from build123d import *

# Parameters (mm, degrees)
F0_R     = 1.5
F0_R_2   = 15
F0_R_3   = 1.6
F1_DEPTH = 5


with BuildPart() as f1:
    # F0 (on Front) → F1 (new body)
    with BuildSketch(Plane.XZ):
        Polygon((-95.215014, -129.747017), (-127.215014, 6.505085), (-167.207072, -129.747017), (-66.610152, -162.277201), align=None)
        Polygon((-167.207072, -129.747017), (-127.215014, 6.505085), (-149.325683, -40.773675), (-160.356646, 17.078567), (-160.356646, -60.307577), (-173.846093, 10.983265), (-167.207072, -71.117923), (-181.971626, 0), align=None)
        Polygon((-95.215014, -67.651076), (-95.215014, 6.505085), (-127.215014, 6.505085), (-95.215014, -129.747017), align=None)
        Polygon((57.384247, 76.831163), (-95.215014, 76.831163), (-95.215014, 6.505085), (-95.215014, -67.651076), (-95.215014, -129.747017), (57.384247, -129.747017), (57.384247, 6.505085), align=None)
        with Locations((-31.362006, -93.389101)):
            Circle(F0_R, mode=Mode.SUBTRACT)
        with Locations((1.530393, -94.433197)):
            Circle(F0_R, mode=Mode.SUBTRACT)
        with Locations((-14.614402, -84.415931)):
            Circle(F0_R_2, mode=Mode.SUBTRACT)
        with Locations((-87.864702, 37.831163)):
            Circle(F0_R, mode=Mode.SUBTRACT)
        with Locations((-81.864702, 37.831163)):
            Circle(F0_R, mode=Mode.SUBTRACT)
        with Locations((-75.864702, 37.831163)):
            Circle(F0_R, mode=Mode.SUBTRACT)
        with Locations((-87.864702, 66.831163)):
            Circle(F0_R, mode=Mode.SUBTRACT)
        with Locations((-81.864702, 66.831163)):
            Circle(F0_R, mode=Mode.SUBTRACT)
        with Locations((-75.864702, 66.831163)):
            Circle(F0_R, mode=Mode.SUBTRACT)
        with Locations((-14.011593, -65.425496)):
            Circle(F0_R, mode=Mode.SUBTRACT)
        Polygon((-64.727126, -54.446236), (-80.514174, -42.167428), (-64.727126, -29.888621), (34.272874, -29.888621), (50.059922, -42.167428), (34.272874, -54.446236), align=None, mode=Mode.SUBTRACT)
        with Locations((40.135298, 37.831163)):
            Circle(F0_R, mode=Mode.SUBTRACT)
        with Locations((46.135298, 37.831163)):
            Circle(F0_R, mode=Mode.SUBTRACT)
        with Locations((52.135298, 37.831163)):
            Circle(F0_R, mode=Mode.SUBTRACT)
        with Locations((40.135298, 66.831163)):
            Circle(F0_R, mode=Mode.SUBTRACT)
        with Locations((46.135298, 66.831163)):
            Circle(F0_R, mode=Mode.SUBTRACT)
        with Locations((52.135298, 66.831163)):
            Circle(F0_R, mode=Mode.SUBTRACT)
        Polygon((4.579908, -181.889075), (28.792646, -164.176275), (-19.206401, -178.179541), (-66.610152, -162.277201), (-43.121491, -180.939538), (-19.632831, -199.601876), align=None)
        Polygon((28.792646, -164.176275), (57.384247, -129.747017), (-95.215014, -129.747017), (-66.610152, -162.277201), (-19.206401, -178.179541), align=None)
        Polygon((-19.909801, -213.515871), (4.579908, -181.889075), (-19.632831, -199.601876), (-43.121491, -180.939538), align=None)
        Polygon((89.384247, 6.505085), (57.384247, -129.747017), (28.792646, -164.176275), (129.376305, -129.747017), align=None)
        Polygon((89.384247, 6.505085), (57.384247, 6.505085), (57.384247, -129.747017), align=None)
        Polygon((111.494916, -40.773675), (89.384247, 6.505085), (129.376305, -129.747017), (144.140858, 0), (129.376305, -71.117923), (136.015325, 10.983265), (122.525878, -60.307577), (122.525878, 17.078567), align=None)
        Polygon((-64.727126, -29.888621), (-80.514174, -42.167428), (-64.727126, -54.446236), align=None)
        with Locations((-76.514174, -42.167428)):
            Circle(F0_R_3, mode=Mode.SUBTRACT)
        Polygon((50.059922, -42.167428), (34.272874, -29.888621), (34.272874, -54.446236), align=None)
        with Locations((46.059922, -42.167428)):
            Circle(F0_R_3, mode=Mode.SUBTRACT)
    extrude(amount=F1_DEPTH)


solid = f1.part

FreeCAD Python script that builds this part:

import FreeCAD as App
import Part
import Sketcher
Q = App.Units.Quantity


def add_polygon(sketch, points):
    """Adds a closed chain of lines whose ends are joined by coincident constraints."""
    first, n = sketch.GeometryCount, len(points)
    for a, b in zip(points, points[1:] + points[:1]):
        sketch.addGeometry(Part.LineSegment(App.Vector(*a, 0), App.Vector(*b, 0)), False)
    for i in range(n):
        sketch.addConstraint(Sketcher.Constraint("Coincident", first + i, 2, first + (i + 1) % n, 1))

doc = App.newDocument("Part")
params = doc.addObject("Spreadsheet::Sheet", "Params")
for row, (alias, value) in enumerate([
    ("sketch1_diameter", "3 mm"),
    ("sketch1_diameter2", "30 mm"),
    ("sketch1_diameter3", "3.2 mm"),
    ("sketch1_width", "32 mm"),
    ("sketch1_width2", "99 mm"),
    ("pad1_length", "5 mm"),
], start=1):
    params.set(f"A{row}", alias)
    params.set(f"B{row}", "=" + value)
    params.setAlias(f"B{row}", alias)

body = doc.addObject("PartDesign::Body", "Body")

# Sketch on XZ plane
sketch1 = body.newObject("Sketcher::SketchObject", "Sketch")
sketch1.AttachmentSupport = (doc.getObject("XZ_Plane"), [""])
sketch1.MapMode = "FlatFace"
add_polygon(sketch1, [(-127.2, 6.5), (-149.3, -40.8), (-160.4, 17.1), (-160.4, -60.3), (-173.8, 11), (-167.2, -71.1), (-182, 0), (-167.2, -129.7), (-66.6, -162.3), (-43.1, -180.9), (-19.9, -213.5), (4.6, -181.9), (28.8, -164.2), (129.4, -129.7), (144.1, 0), (129.4, -71.1), (136, 11), (122.5, -60.3), (122.5, 17.1), (111.5, -40.8), (89.4, 6.5), (57.4, 6.5), (57.4, 76.8), (-95.2, 76.8), (-95.2, 6.5)])  # lines 0-24
sketch1.addGeometry(Part.Circle(App.Vector(-31.4, -93.4, 0), App.Vector(0, 0, 1), 1.5), False)  # 25
sketch1.addGeometry(Part.Circle(App.Vector(-76.5, -42.2, 0), App.Vector(0, 0, 1), 1.6), False)  # 26
sketch1.addGeometry(Part.Circle(App.Vector(-14.6, -84.4, 0), App.Vector(0, 0, 1), 15), False)  # 27
sketch1.addGeometry(Part.Circle(App.Vector(1.5, -94.4, 0), App.Vector(0, 0, 1), 1.5), False)  # 28
sketch1.addGeometry(Part.Circle(App.Vector(-14, -65.4, 0), App.Vector(0, 0, 1), 1.5), False)  # 29
add_polygon(sketch1, [(34.3, -54.4), (-64.7, -54.4), (-64.7, -29.9), (34.3, -29.9)])  # lines 30-33
sketch1.addGeometry(Part.Circle(App.Vector(46.1, -42.2, 0), App.Vector(0, 0, 1), 1.6), False)  # 34
sketch1.addGeometry(Part.Circle(App.Vector(-87.9, 37.8, 0), App.Vector(0, 0, 1), 1.5), False)  # 35
sketch1.addGeometry(Part.Circle(App.Vector(-81.9, 37.8, 0), App.Vector(0, 0, 1), 1.5), False)  # 36
sketch1.addGeometry(Part.Circle(App.Vector(-75.9, 37.8, 0), App.Vector(0, 0, 1), 1.5), False)  # 37
sketch1.addGeometry(Part.Circle(App.Vector(-87.9, 66.8, 0), App.Vector(0, 0, 1), 1.5), False)  # 38
sketch1.addGeometry(Part.Circle(App.Vector(-81.9, 66.8, 0), App.Vector(0, 0, 1), 1.5), False)  # 39
sketch1.addGeometry(Part.Circle(App.Vector(-75.9, 66.8, 0), App.Vector(0, 0, 1), 1.5), False)  # 40
sketch1.addGeometry(Part.Circle(App.Vector(40.1, 37.8, 0), App.Vector(0, 0, 1), 1.5), False)  # 41
sketch1.addGeometry(Part.Circle(App.Vector(46.1, 37.8, 0), App.Vector(0, 0, 1), 1.5), False)  # 42
sketch1.addGeometry(Part.Circle(App.Vector(52.1, 37.8, 0), App.Vector(0, 0, 1), 1.5), False)  # 43
sketch1.addGeometry(Part.Circle(App.Vector(40.1, 66.8, 0), App.Vector(0, 0, 1), 1.5), False)  # 44
sketch1.addGeometry(Part.Circle(App.Vector(46.1, 66.8, 0), App.Vector(0, 0, 1), 1.5), False)  # 45
sketch1.addGeometry(Part.Circle(App.Vector(52.1, 66.8, 0), App.Vector(0, 0, 1), 1.5), False)  # 46
sketch1.addConstraint(Sketcher.Constraint("Vertical", 2))
sketch1.addConstraint(Sketcher.Constraint("Vertical", 17))
sketch1.addConstraint(Sketcher.Constraint("Horizontal", 20))
sketch1.addConstraint(Sketcher.Constraint("Vertical", 21))
sketch1.addConstraint(Sketcher.Constraint("Horizontal", 22))
sketch1.addConstraint(Sketcher.Constraint("Vertical", 23))
sketch1.addConstraint(Sketcher.Constraint("Horizontal", 24))
sketch1.addConstraint(Sketcher.Constraint("Horizontal", 30))
sketch1.addConstraint(Sketcher.Constraint("Vertical", 31))
sketch1.addConstraint(Sketcher.Constraint("Horizontal", 32))
sketch1.addConstraint(Sketcher.Constraint("Vertical", 33))
sketch1.addConstraint(Sketcher.Constraint("Equal", 25, 28))
sketch1.addConstraint(Sketcher.Constraint("Equal", 28, 29))
sketch1.addConstraint(Sketcher.Constraint("Equal", 26, 34))
sketch1.addConstraint(Sketcher.Constraint("Equal", 29, 35))
sketch1.addConstraint(Sketcher.Constraint("Equal", 35, 36))
sketch1.addConstraint(Sketcher.Constraint("Equal", 36, 37))
sketch1.addConstraint(Sketcher.Constraint("Equal", 37, 38))
sketch1.addConstraint(Sketcher.Constraint("Equal", 38, 39))
sketch1.addConstraint(Sketcher.Constraint("Equal", 39, 40))
sketch1.addConstraint(Sketcher.Constraint("Equal", 40, 41))
sketch1.addConstraint(Sketcher.Constraint("Equal", 41, 42))
sketch1.addConstraint(Sketcher.Constraint("Equal", 42, 43))
sketch1.addConstraint(Sketcher.Constraint("Equal", 43, 44))
sketch1.addConstraint(Sketcher.Constraint("Equal", 44, 45))
sketch1.addConstraint(Sketcher.Constraint("Equal", 45, 46))
sketch1.addConstraint(Sketcher.Constraint("PointOnObject", 5, 2, -1))
sketch1.addConstraint(Sketcher.Constraint("PointOnObject", 13, 2, -1))
sketch1.addConstraint(Sketcher.Constraint("Horizontal", 26, 3, 34, 3))
sketch1.addConstraint(Sketcher.Constraint("Horizontal", 35, 3, 36, 3))
sketch1.addConstraint(Sketcher.Constraint("Horizontal", 36, 3, 37, 3))
sketch1.addConstraint(Sketcher.Constraint("Horizontal", 38, 3, 39, 3))
sketch1.addConstraint(Sketcher.Constraint("Horizontal", 39, 3, 40, 3))
sketch1.addConstraint(Sketcher.Constraint("Horizontal", 37, 3, 41, 3))
sketch1.addConstraint(Sketcher.Constraint("Horizontal", 41, 3, 42, 3))
sketch1.addConstraint(Sketcher.Constraint("Horizontal", 42, 3, 43, 3))
sketch1.addConstraint(Sketcher.Constraint("Horizontal", 40, 3, 44, 3))
sketch1.addConstraint(Sketcher.Constraint("Horizontal", 44, 3, 45, 3))
sketch1.addConstraint(Sketcher.Constraint("Horizontal", 45, 3, 46, 3))
sketch1.addConstraint(Sketcher.Constraint("Horizontal", 6, 2, 12, 2))
sketch1.addConstraint(Sketcher.Constraint("Horizontal", 4, 2, 14, 2))
sketch1.addConstraint(Sketcher.Constraint("Horizontal", 3, 2, 15, 2))
sketch1.addConstraint(Sketcher.Constraint("Horizontal", 2, 2, 16, 2))
sketch1.addConstraint(Sketcher.Constraint("Horizontal", 1, 2, 17, 2))
sketch1.addConstraint(Sketcher.Constraint("Horizontal", 0, 2, 18, 2))
sketch1.addConstraint(Sketcher.Constraint("Horizontal", 20, 2, 23, 2))
sketch1.addConstraint(Sketcher.Constraint("Vertical", 35, 3, 38, 3))
sketch1.addConstraint(Sketcher.Constraint("Vertical", 36, 3, 39, 3))
sketch1.addConstraint(Sketcher.Constraint("Vertical", 37, 3, 40, 3))
sketch1.addConstraint(Sketcher.Constraint("Vertical", 41, 3, 44, 3))
sketch1.addConstraint(Sketcher.Constraint("Vertical", 42, 3, 45, 3))
sketch1.addConstraint(Sketcher.Constraint("Vertical", 43, 3, 46, 3))
sketch1.addConstraint(Sketcher.Constraint("Vertical", 4, 2, 6, 2))
sketch1.addConstraint(Sketcher.Constraint("Vertical", 12, 2, 14, 2))
sketch1.addConstraint(Sketcher.Constraint("Equal", 20, 24))
sketch1.addConstraint(Sketcher.Constraint("Equal", 9, 10))
sketch1.addConstraint(Sketcher.Constraint("Equal", 8, 11))
sketch1.addConstraint(Sketcher.Constraint("Equal", 6, 13))
sketch1.addConstraint(Sketcher.Constraint("Equal", 4, 15))
sketch1.addConstraint(Sketcher.Constraint("Equal", 3, 16))
sketch1.addConstraint(Sketcher.Constraint("Equal", 1, 18))
sketch1.addConstraint(Sketcher.Constraint("Equal", 0, 19))
sketch1.addConstraint(Sketcher.Constraint("Diameter", 25, Q("3 mm")))
sketch1.addConstraint(Sketcher.Constraint("Diameter", 27, Q("30 mm")))
sketch1.addConstraint(Sketcher.Constraint("Diameter", 26, Q("3.2 mm")))
sketch1.addConstraint(Sketcher.Constraint("DistanceX", 20, 2, 20, 1, Q("32 mm")))
sketch1.addConstraint(Sketcher.Constraint("DistanceX", 30, 2, 30, 1, Q("99 mm")))
sketch1.addConstraint(Sketcher.Constraint("Distance", 8, Q("30 mm")))
sketch1.addConstraint(Sketcher.Constraint("Distance", 9, Q("40 mm")))
sketch1.addConstraint(Sketcher.Constraint("DistanceX", 35, 3, 36, 3, Q("6 mm")))
sketch1.addConstraint(Sketcher.Constraint("DistanceX", 36, 3, 37, 3, Q("6 mm")))
sketch1.addConstraint(Sketcher.Constraint("DistanceY", 35, 3, 38, 3, Q("29 mm")))
sketch1.addConstraint(Sketcher.Constraint("DistanceX", 37, 3, 41, 3, Q("116 mm")))
sketch1.addConstraint(Sketcher.Constraint("DistanceX", 41, 3, 42, 3, Q("6 mm")))
sketch1.addConstraint(Sketcher.Constraint("DistanceX", 42, 3, 43, 3, Q("6 mm")))
sketch1.addConstraint(Sketcher.Constraint("DistanceY", 46, 3, 21, 2, Q("10 mm")))
sketch1.addConstraint(Sketcher.Constraint("DistanceX", 22, 2, 22, 1, Q("152.599261 mm")))
sketch1.addConstraint(Sketcher.Constraint("DistanceY", 21, 1, 21, 2, Q("70.326078 mm")))
sketch1.addConstraint(Sketcher.Constraint("DistanceY", 25, 3, -1, 1, Q("93.389101 mm")))
sketch1.addConstraint(Sketcher.Constraint("DistanceX", 35, 3, -1, 1, Q("87.864702 mm")))
sketch1.addConstraint(Sketcher.Constraint("DistanceY", 7, 2, -1, 1, Q("162.277201 mm")))
sketch1.addConstraint(Sketcher.Constraint("DistanceX", 9, 2, -1, 1, Q("19.909801 mm")))
sketch1.addConstraint(Sketcher.Constraint("DistanceX", 25, 3, 28, 3, Q("32.892399 mm")))
sketch1.addConstraint(Sketcher.Constraint("DistanceY", 28, 3, 29, 3, Q("29.007701 mm")))
sketch1.addConstraint(Sketcher.Constraint("DistanceX", 35, 3, 27, 3, Q("73.2503 mm")))
sketch1.addConstraint(Sketcher.Constraint("DistanceX", 4, 2, 26, 3, Q("90.692898 mm")))
sketch1.addConstraint(Sketcher.Constraint("DistanceX", 8, 2, 29, 3, Q("29.109898 mm")))
sketch1.addConstraint(Sketcher.Constraint("DistanceX", 8, 2, 10, 2, Q("47.701399 mm")))
sketch1.addConstraint(Sketcher.Constraint("DistanceY", 10, 2, 11, 2, Q("17.7128 mm")))
sketch1.addConstraint(Sketcher.Constraint("Distance", 4, Q("82.369179 mm")))
sketch1.addConstraint(Sketcher.Constraint("Distance", 6, Q("130.584381 mm")))
sketch1.addConstraint(Sketcher.Constraint("Distance", 7, Q("105.72584 mm")))
sketch1.addConstraint(Sketcher.Constraint("DistanceY", 2, 2, 2, 1, Q("77.386144 mm")))
sketch1.addConstraint(Sketcher.Constraint("DistanceY", 31, 1, 31, 2, Q("24.557615 mm")))
sketch1.addConstraint(Sketcher.Constraint("DistanceY", 27, 3, -1, 1, Q("84.415931 mm")))
sketch1.addConstraint(Sketcher.Constraint("DistanceX", 7, 2, -1, 1, Q("66.610152 mm")))
sketch1.addConstraint(Sketcher.Constraint("DistanceX", 8, 2, -1, 1, Q("43.121491 mm")))
sketch1.addConstraint(Sketcher.Constraint("DistanceX", -1, 1, 13, 2, Q("144.140858 mm")))
sketch1.addConstraint(Sketcher.Constraint("DistanceX", -1, 1, 16, 2, Q("122.525878 mm")))
sketch1.addConstraint(Sketcher.Constraint("DistanceY", 31, 2, -1, 1, Q("29.888621 mm")))
sketch1.addConstraint(Sketcher.Constraint("DistanceY", 28, 3, 26, 3, Q("52.265769 mm")))
sketch1.addConstraint(Sketcher.Constraint("DistanceX", 26, 3, 29, 3, Q("62.502581 mm")))
sketch1.addConstraint(Sketcher.Constraint("DistanceX", 28, 3, 34, 3, Q("44.529529 mm")))
sketch1.addConstraint(Sketcher.Constraint("DistanceY", 26, 3, 35, 3, Q("79.998591 mm")))
sketch1.addConstraint(Sketcher.Constraint("DistanceX", 0, 2, 26, 3, Q("72.811509 mm")))
sketch1.addConstraint(Sketcher.Constraint("DistanceY", 0, 2, 35, 3, Q("78.604838 mm")))
sketch1.addConstraint(Sketcher.Constraint("DistanceY", 0, 2, 1, 2, Q("57.852242 mm")))
sketch1.addConstraint(Sketcher.Constraint("DistanceX", 3, 2, 0, 2, Q("24.52041 mm")))
sketch1.addConstraint(Sketcher.Constraint("DistanceY", 0, 2, 3, 2, Q("51.75694 mm")))
sketch1.addConstraint(Sketcher.Constraint("DistanceY", 6, 2, 2, 2, Q("69.43944 mm")))
sketch1.addConstraint(Sketcher.Constraint("DistanceX", 28, 3, 12, 2, Q("127.845912 mm")))
sketch1.addConstraint(Sketcher.Constraint("DistanceX", 30, 2, 25, 3, Q("33.36512 mm")))
sketch1.setExpression("Constraints[91]", "Params.sketch1_diameter")
sketch1.setExpression("Constraints[92]", "Params.sketch1_diameter2")
sketch1.setExpression("Constraints[93]", "Params.sketch1_diameter3")
sketch1.setExpression("Constraints[94]", "Params.sketch1_width")
sketch1.setExpression("Constraints[95]", "Params.sketch1_width2")
pad1 = body.newObject("PartDesign::Pad", "Pad")
pad1.Profile = sketch1
pad1.setExpression("Length", "Params.pad1_length")

doc.recompute()
